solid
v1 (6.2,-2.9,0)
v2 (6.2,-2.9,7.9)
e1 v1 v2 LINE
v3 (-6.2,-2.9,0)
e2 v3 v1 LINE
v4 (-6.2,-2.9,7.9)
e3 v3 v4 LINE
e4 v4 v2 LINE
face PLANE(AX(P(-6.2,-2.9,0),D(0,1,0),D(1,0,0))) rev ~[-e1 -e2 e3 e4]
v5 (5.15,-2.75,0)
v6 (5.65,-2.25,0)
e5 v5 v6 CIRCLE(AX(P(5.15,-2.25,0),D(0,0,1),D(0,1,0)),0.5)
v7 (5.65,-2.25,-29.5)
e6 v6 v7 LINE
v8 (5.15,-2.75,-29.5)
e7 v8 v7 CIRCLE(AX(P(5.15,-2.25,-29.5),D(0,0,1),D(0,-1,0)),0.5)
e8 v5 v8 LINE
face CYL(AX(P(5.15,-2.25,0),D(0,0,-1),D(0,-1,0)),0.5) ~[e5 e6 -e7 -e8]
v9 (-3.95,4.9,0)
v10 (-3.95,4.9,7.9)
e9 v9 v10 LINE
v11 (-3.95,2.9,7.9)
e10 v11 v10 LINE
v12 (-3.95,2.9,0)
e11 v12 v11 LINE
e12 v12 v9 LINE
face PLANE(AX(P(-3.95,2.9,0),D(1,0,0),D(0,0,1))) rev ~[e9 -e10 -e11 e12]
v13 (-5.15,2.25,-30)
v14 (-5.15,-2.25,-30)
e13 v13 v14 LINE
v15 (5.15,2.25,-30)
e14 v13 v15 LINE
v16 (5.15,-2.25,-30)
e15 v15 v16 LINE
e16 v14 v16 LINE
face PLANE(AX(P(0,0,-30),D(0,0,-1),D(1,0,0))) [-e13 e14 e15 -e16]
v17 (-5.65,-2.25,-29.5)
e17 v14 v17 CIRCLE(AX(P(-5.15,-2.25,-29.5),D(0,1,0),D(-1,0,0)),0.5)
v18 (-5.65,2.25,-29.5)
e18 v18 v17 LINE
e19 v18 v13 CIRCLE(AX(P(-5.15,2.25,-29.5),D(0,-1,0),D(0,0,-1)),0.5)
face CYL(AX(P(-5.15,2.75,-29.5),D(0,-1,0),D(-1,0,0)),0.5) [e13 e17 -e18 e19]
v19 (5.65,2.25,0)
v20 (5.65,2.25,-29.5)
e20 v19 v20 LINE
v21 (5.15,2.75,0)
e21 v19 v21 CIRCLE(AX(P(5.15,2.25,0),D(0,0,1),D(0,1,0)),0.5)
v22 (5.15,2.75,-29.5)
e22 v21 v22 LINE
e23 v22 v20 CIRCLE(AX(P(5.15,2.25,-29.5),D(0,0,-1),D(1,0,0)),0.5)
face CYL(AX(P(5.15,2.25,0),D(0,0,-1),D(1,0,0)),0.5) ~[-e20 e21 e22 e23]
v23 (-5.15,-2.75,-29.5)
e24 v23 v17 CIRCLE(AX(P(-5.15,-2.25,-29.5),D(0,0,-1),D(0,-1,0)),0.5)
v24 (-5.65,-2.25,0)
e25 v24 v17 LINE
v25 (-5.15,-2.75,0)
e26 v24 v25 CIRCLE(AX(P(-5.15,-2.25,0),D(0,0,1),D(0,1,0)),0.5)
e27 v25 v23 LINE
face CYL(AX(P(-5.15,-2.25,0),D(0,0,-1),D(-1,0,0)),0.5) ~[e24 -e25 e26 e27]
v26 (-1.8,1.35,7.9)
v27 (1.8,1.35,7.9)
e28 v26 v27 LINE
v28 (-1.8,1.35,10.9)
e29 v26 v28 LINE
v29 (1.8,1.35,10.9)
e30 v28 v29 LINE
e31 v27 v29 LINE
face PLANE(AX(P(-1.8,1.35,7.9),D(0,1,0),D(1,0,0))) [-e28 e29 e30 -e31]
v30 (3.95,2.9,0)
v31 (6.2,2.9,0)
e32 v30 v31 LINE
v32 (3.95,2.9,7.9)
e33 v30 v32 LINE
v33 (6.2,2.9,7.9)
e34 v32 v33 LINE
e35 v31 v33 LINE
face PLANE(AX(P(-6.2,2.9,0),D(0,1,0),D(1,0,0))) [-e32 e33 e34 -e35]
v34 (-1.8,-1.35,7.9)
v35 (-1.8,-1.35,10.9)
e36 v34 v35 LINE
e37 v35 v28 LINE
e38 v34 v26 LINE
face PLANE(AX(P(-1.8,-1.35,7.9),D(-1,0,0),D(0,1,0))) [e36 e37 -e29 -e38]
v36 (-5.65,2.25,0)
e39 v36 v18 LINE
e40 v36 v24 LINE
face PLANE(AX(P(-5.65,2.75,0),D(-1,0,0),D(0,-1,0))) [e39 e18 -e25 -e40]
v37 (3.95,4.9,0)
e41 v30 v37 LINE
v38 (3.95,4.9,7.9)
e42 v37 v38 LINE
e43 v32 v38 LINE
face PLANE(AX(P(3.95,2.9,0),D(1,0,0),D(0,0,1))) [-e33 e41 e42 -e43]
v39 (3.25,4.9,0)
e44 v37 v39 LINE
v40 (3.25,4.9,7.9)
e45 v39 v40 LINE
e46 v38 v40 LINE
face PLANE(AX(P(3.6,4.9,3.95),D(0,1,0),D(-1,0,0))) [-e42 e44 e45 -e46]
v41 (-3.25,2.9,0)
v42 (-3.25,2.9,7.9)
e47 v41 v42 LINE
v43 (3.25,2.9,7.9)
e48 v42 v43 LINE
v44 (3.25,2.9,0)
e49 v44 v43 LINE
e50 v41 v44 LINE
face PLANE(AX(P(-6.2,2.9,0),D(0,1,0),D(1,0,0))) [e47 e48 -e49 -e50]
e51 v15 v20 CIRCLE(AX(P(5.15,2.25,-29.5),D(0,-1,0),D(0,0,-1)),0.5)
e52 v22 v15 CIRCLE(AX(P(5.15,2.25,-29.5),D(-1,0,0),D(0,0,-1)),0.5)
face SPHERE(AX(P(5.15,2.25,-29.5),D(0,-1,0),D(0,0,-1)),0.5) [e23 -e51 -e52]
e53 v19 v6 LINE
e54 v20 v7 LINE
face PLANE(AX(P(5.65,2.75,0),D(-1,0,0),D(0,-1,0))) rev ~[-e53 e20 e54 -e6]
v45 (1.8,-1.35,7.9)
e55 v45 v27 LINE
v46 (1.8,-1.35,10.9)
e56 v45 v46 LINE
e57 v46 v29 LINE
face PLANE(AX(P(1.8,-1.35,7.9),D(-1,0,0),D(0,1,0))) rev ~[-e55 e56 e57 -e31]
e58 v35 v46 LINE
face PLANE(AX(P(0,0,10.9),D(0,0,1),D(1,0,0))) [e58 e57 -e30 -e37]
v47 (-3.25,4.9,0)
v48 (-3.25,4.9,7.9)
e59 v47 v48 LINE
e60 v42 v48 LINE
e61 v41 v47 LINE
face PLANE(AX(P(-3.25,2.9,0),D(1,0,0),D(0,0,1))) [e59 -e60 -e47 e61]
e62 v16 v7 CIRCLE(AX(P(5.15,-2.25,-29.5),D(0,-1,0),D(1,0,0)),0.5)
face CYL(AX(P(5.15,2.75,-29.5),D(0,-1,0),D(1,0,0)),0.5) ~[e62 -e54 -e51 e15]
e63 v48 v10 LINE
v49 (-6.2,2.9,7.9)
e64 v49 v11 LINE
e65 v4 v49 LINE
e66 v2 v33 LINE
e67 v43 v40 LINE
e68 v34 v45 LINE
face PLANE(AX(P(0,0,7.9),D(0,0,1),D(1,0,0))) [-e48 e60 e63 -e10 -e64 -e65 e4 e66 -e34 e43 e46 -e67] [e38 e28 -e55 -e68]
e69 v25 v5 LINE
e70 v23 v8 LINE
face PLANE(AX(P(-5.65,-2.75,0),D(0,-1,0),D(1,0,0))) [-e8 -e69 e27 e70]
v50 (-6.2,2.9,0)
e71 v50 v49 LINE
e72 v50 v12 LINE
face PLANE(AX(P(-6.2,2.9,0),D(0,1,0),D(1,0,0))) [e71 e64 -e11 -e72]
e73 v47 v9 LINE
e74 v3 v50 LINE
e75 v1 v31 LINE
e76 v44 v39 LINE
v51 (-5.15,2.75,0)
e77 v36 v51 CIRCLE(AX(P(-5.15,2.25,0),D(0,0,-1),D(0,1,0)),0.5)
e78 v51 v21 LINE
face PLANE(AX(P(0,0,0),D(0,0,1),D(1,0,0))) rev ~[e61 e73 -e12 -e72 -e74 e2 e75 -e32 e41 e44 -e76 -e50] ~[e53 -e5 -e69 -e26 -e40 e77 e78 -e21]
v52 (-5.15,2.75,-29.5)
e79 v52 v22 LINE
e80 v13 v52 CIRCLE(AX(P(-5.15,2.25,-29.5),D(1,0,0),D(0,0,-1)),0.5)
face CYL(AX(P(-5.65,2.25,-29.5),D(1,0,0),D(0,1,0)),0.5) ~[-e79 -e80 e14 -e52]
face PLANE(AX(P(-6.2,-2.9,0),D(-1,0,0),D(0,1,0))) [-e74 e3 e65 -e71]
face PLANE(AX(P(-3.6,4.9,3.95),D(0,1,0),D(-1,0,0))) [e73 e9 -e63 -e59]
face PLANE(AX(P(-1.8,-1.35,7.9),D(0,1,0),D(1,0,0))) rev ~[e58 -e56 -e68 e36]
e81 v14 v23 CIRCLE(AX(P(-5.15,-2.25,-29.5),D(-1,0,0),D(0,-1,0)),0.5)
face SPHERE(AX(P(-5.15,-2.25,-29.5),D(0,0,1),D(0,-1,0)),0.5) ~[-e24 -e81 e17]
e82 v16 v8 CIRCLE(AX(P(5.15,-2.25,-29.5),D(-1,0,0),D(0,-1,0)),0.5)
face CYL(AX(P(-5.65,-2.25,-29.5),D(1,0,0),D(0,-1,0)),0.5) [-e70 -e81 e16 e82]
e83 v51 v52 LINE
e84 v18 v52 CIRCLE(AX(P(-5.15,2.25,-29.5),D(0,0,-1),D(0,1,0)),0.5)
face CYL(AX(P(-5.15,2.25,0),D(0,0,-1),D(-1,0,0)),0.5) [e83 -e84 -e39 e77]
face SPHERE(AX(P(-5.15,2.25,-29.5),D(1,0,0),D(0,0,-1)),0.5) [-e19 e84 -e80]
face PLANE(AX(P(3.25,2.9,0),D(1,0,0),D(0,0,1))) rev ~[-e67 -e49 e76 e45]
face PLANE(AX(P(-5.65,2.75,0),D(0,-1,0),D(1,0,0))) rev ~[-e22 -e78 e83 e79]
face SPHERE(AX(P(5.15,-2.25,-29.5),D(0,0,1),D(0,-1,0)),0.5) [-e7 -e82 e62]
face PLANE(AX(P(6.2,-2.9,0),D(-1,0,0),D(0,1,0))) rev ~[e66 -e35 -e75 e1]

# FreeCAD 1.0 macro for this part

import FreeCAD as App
import Part
import Sketcher
Q = App.Units.Quantity


def edges_at(feature, points):
    """Names of the edges that pass closest to the given points."""
    edges = feature.Shape.Edges
    near = lambda p: min(range(len(edges)), key=lambda i: edges[i].distToShape(Part.Vertex(*p))[0])
    return sorted({f"Edge{near(p) + 1}" for p in points})


def add_polygon(sketch, points):
    """Adds a closed chain of lines whose ends are joined by coincident constraints."""
    first, n = sketch.GeometryCount, len(points)
    for a, b in zip(points, points[1:] + points[:1]):
        sketch.addGeometry(Part.LineSegment(App.Vector(*a, 0), App.Vector(*b, 0)), False)
    for i in range(n):
        sketch.addConstraint(Sketcher.Constraint("Coincident", first + i, 2, first + (i + 1) % n, 1))

doc = App.newDocument("Part")
body = doc.addObject("PartDesign::Body", "Body")

# Sketch on XY plane
sketch1 = body.newObject("Sketcher::SketchObject", "Sketch")
sketch1.AttachmentSupport = (doc.getObject("XY_Plane"), [""])
sketch1.MapMode = "FlatFace"
add_polygon(sketch1, [(-6, 3), (-6, -3), (6, -3), (6, 3)])  # lines 0-3
sketch1.addConstraint(Sketcher.Constraint("Vertical", 0))
sketch1.addConstraint(Sketcher.Constraint("Horizontal", 1))
sketch1.addConstraint(Sketcher.Constraint("Vertical", 2))
sketch1.addConstraint(Sketcher.Constraint("Horizontal", 3))
sketch1.addConstraint(Sketcher.Constraint("Symmetric", 0, 2, 2, 2, -1, 1))
sketch1.addConstraint(Sketcher.Constraint("DistanceX", 1, 1, 1, 2, Q("12.4 mm")))
sketch1.addConstraint(Sketcher.Constraint("DistanceY", 0, 2, 0, 1, Q("5.8 mm")))
pad1 = body.newObject("PartDesign::Pad", "Pad")
pad1.Profile = sketch1
pad1.Length = 7.9

# Sketch on XY plane
sketch2 = body.newObject("Sketcher::SketchObject", "Sketch001")
sketch2.AttachmentSupport = (doc.getObject("XY_Plane"), [""])
sketch2.MapMode = "FlatFace"
add_polygon(sketch2, [(-6, -3), (-6, 3), (6, 3), (6, -3)])  # lines 0-3
sketch2.addConstraint(Sketcher.Constraint("Vertical", 0))
sketch2.addConstraint(Sketcher.Constraint("Horizontal", 1))
sketch2.addConstraint(Sketcher.Constraint("Vertical", 2))
sketch2.addConstraint(Sketcher.Constraint("Horizontal", 3))
sketch2.addConstraint(Sketcher.Constraint("Symmetric", 0, 2, 2, 2, -1, 1))
sketch2.addConstraint(Sketcher.Constraint("DistanceX", 1, 1, 1, 2, Q("11.3 mm")))
sketch2.addConstraint(Sketcher.Constraint("DistanceY", 0, 1, 0, 2, Q("5.5 mm")))
pad2 = body.newObject("PartDesign::Pad", "Pad001")
pad2.Profile = sketch2
pad2.Length = 30
pad2.Reversed = True
doc.recompute()

fillet = body.newObject("PartDesign::Fillet", "Fillet")
fillet.Base = (pad2, edges_at(pad2, [
    (-5.65, -2.75, -15),
    (5.65, -2.75, -15),
    (0, -2.75, -30),
    (5.65, 0, -30),
    (0, 2.75, -30),
    (-5.65, 0, -30),
    (5.65, 2.75, -15),
    (-5.65, 2.75, -15),
]))
fillet.Radius = 0.5

# Sketch on XY plane
sketch3 = body.newObject("Sketcher::SketchObject", "Sketch002")
sketch3.AttachmentSupport = (doc.getObject("XY_Plane"), [""])
sketch3.MapMode = "FlatFace"
sketch3.AttachmentOffset = App.Placement(App.Vector(0, 0, 7.9), App.Rotation())
add_polygon(sketch3, [(-1.8, 1.4), (-1.8, -1.4), (1.8, -1.4), (1.8, 1.4)])  # lines 0-3
sketch3.addConstraint(Sketcher.Constraint("Vertical", 0))
sketch3.addConstraint(Sketcher.Constraint("Horizontal", 1))
sketch3.addConstraint(Sketcher.Constraint("Vertical", 2))
sketch3.addConstraint(Sketcher.Constraint("Horizontal", 3))
sketch3.addConstraint(Sketcher.Constraint("Symmetric", 0, 2, 2, 2, -1, 1))
sketch3.addConstraint(Sketcher.Constraint("DistanceX", 1, 1, 1, 2, Q("3.6 mm")))
sketch3.addConstraint(Sketcher.Constraint("DistanceY", 0, 2, 0, 1, Q("2.7 mm")))
pad3 = body.newObject("PartDesign::Pad", "Pad002")
pad3.Profile = sketch3
pad3.Length = 3

# Sketch on XZ plane
sketch4 = body.newObject("Sketcher::SketchObject", "Sketch003")
sketch4.AttachmentSupport = (doc.getObject("XZ_Plane"), [""])
sketch4.MapMode = "FlatFace"
sketch4.AttachmentOffset = App.Placement(App.Vector(0, 0, -2.9), App.Rotation())
add_polygon(sketch4, [(-3.2, 7.9), (-3.2, 0), (-4, 0), (-4, 7.9)])  # lines 0-3
add_polygon(sketch4, [(4, 7.9), (4, 0), (3.2, 0), (3.2, 7.9)])  # lines 4-7
sketch4.addConstraint(Sketcher.Constraint("Vertical", 0))
sketch4.addConstraint(Sketcher.Constraint("Horizontal", 1))
sketch4.addConstraint(Sketcher.Constraint("Vertical", 2))
sketch4.addConstraint(Sketcher.Constraint("Horizontal", 3))
sketch4.addConstraint(Sketcher.Constraint("Vertical", 4))
sketch4.addConstraint(Sketcher.Constraint("Horizontal", 5))
sketch4.addConstraint(Sketcher.Constraint("Vertical", 6))
sketch4.addConstraint(Sketcher.Constraint("Horizontal", 7))
sketch4.addConstraint(Sketcher.Constraint("Symmetric", 1, 2, 4, 2, -1, 1))
sketch4.addConstraint(Sketcher.Constraint("Symmetric", 0, 2, 5, 2, -2))
sketch4.addConstraint(Sketcher.Constraint("Horizontal", 3, 2, 6, 2))
sketch4.addConstraint(Sketcher.Constraint("DistanceX", 1, 2, 1, 1, Q("0.7 mm")))
sketch4.addConstraint(Sketcher.Constraint("DistanceY", 0, 2, 0, 1, Q("7.9 mm")))
sketch4.addConstraint(Sketcher.Constraint("DistanceX", 0, 2, 4, 2, Q("7.2 mm")))
pad4 = body.newObject("PartDesign::Pad", "Pad003")
pad4.Profile = sketch4
pad4.Length = 2
pad4.Reversed = True

doc.recompute()
